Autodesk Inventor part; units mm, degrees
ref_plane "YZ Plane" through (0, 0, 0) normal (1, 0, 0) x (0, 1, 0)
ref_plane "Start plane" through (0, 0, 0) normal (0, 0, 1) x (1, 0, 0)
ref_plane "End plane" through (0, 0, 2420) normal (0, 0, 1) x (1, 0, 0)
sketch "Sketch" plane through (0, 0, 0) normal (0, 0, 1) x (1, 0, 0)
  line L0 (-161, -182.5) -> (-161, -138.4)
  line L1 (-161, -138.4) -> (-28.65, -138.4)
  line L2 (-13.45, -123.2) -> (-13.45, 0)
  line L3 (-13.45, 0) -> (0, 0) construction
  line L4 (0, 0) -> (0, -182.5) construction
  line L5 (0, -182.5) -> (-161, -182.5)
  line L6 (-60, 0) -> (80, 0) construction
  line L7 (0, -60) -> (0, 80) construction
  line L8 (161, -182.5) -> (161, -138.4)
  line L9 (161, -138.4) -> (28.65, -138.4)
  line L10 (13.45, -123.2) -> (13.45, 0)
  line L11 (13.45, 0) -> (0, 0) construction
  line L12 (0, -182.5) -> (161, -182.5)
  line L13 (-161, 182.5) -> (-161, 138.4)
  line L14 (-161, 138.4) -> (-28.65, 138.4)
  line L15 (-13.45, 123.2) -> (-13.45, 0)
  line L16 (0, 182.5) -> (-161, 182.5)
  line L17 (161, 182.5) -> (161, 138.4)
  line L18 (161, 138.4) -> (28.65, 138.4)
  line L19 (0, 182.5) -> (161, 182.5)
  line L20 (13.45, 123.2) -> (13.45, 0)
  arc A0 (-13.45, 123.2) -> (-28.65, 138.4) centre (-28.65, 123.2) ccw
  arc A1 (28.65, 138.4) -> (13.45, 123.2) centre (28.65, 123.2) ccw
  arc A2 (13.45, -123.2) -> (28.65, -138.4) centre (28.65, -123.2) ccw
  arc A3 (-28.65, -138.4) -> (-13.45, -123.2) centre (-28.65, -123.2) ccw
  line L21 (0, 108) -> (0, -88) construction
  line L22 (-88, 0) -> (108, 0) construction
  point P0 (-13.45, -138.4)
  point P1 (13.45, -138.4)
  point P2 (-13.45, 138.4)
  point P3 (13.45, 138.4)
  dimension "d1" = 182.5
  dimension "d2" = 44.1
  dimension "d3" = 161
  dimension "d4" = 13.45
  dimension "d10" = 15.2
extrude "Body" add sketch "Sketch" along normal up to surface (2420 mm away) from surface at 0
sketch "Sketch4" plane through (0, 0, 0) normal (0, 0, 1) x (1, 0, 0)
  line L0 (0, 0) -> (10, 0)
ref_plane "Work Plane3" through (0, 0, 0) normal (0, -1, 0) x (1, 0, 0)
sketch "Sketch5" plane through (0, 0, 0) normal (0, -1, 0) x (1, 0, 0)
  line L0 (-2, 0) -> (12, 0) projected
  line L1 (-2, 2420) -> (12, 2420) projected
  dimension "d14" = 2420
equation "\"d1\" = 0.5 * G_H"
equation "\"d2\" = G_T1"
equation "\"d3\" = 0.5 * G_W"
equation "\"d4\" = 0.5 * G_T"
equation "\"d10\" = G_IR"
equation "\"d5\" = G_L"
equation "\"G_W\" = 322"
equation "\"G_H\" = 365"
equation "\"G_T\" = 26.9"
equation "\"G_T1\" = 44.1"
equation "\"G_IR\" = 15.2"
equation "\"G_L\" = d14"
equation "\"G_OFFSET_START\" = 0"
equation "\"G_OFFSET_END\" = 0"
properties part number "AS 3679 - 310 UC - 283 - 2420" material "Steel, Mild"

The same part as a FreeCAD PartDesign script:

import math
import FreeCAD as App
import Part
import Sketcher

V = App.Vector
Q = App.Units.Quantity

doc = App.newDocument("Part")
body = doc.addObject("PartDesign::Body", "Body")

sketch1 = body.newObject("Sketcher::SketchObject", "Sketch")
sketch1.AttachmentSupport = (doc.getObject("XY_Plane"), [""])
sketch1.MapMode = "FlatFace"
sketch1.addGeometry([
    Part.LineSegment(V(-161, -138, 0), V(-161, -182, 0)),
    Part.LineSegment(V(-161, -182, 0), V(161, -182, 0)),
    Part.LineSegment(V(161, -182, 0), V(161, -138, 0)),
    Part.LineSegment(V(161, -138, 0), V(29, -138, 0)),
    Part.ArcOfCircle(Part.Circle(V(29, -123, 0), V(0, 0, 1), 15), math.radians(180), math.radians(270)),
    Part.LineSegment(V(13, -123, 0), V(13, 123, 0)),
    Part.ArcOfCircle(Part.Circle(V(29, 123, 0), V(0, 0, 1), 15), math.radians(90), math.radians(180)),
    Part.LineSegment(V(29, 138, 0), V(161, 138, 0)),
    Part.LineSegment(V(161, 138, 0), V(161, 182, 0)),
    Part.LineSegment(V(161, 182, 0), V(-161, 182, 0)),
    Part.LineSegment(V(-161, 182, 0), V(-161, 138, 0)),
    Part.LineSegment(V(-161, 138, 0), V(-29, 138, 0)),
    Part.ArcOfCircle(Part.Circle(V(-29, 123, 0), V(0, 0, 1), 15), math.radians(0), math.radians(90)),
    Part.LineSegment(V(-13, 123, 0), V(-13, -123, 0)),
    Part.ArcOfCircle(Part.Circle(V(-29, -123, 0), V(0, 0, 1), 15), math.radians(-90), math.radians(0)),
    Part.LineSegment(V(-29, -138, 0), V(-161, -138, 0)),
], False)
sketch1.addConstraint([
    Sketcher.Constraint("Coincident", 0, 2, 1, 1),
    Sketcher.Constraint("Coincident", 1, 2, 2, 1),
    Sketcher.Constraint("Coincident", 2, 2, 3, 1),
    Sketcher.Constraint("Tangent", 3, 2, 4, 2),
    Sketcher.Constraint("Tangent", 4, 1, 5, 1),
    Sketcher.Constraint("Tangent", 5, 2, 6, 2),
    Sketcher.Constraint("Tangent", 6, 1, 7, 1),
    Sketcher.Constraint("Coincident", 7, 2, 8, 1),
    Sketcher.Constraint("Coincident", 8, 2, 9, 1),
    Sketcher.Constraint("Coincident", 9, 2, 10, 1),
    Sketcher.Constraint("Coincident", 10, 2, 11, 1),
    Sketcher.Constraint("Tangent", 11, 2, 12, 2),
    Sketcher.Constraint("Tangent", 12, 1, 13, 1),
    Sketcher.Constraint("Tangent", 13, 2, 14, 2),
    Sketcher.Constraint("Tangent", 14, 1, 15, 1),
    Sketcher.Constraint("Coincident", 15, 2, 0, 1),
    Sketcher.Constraint("Vertical", 0),
    Sketcher.Constraint("Horizontal", 1),
    Sketcher.Constraint("Vertical", 2),
    Sketcher.Constraint("Horizontal", 3),
    Sketcher.Constraint("Vertical", 5),
    Sketcher.Constraint("Horizontal", 7),
    Sketcher.Constraint("Vertical", 8),
    Sketcher.Constraint("Horizontal", 9),
    Sketcher.Constraint("Vertical", 10),
    Sketcher.Constraint("Horizontal", 11),
    Sketcher.Constraint("Vertical", 13),
    Sketcher.Constraint("Horizontal", 15),
    Sketcher.Constraint("Equal", 4, 6),
    Sketcher.Constraint("Equal", 6, 12),
    Sketcher.Constraint("Equal", 12, 14),
    Sketcher.Constraint("Symmetric", 4, 3, 12, 3, -1, 1),
    Sketcher.Constraint("Symmetric", 0, 2, 8, 2, -1, 1),
    Sketcher.Constraint("Symmetric", 7, 2, 10, 2, -2),
    Sketcher.Constraint("Symmetric", 2, 2, 15, 2, -2),
    Sketcher.Constraint("Radius", 4, Q("15.2 mm")),
    Sketcher.Constraint("DistanceY", 0, 2, 0, 1, Q("44.1 mm")),
    Sketcher.Constraint("DistanceX", 0, 2, -1, 1, Q("161 mm")),
    Sketcher.Constraint("DistanceY", 0, 2, -1, 1, Q("182.5 mm")),
    Sketcher.Constraint("DistanceX", -1, 1, 4, 1, Q("13.45 mm")),
])
pad1 = body.newObject("PartDesign::Pad", "Pad")
pad1.Profile = sketch1
pad1.Length = 2420

doc.recompute()
